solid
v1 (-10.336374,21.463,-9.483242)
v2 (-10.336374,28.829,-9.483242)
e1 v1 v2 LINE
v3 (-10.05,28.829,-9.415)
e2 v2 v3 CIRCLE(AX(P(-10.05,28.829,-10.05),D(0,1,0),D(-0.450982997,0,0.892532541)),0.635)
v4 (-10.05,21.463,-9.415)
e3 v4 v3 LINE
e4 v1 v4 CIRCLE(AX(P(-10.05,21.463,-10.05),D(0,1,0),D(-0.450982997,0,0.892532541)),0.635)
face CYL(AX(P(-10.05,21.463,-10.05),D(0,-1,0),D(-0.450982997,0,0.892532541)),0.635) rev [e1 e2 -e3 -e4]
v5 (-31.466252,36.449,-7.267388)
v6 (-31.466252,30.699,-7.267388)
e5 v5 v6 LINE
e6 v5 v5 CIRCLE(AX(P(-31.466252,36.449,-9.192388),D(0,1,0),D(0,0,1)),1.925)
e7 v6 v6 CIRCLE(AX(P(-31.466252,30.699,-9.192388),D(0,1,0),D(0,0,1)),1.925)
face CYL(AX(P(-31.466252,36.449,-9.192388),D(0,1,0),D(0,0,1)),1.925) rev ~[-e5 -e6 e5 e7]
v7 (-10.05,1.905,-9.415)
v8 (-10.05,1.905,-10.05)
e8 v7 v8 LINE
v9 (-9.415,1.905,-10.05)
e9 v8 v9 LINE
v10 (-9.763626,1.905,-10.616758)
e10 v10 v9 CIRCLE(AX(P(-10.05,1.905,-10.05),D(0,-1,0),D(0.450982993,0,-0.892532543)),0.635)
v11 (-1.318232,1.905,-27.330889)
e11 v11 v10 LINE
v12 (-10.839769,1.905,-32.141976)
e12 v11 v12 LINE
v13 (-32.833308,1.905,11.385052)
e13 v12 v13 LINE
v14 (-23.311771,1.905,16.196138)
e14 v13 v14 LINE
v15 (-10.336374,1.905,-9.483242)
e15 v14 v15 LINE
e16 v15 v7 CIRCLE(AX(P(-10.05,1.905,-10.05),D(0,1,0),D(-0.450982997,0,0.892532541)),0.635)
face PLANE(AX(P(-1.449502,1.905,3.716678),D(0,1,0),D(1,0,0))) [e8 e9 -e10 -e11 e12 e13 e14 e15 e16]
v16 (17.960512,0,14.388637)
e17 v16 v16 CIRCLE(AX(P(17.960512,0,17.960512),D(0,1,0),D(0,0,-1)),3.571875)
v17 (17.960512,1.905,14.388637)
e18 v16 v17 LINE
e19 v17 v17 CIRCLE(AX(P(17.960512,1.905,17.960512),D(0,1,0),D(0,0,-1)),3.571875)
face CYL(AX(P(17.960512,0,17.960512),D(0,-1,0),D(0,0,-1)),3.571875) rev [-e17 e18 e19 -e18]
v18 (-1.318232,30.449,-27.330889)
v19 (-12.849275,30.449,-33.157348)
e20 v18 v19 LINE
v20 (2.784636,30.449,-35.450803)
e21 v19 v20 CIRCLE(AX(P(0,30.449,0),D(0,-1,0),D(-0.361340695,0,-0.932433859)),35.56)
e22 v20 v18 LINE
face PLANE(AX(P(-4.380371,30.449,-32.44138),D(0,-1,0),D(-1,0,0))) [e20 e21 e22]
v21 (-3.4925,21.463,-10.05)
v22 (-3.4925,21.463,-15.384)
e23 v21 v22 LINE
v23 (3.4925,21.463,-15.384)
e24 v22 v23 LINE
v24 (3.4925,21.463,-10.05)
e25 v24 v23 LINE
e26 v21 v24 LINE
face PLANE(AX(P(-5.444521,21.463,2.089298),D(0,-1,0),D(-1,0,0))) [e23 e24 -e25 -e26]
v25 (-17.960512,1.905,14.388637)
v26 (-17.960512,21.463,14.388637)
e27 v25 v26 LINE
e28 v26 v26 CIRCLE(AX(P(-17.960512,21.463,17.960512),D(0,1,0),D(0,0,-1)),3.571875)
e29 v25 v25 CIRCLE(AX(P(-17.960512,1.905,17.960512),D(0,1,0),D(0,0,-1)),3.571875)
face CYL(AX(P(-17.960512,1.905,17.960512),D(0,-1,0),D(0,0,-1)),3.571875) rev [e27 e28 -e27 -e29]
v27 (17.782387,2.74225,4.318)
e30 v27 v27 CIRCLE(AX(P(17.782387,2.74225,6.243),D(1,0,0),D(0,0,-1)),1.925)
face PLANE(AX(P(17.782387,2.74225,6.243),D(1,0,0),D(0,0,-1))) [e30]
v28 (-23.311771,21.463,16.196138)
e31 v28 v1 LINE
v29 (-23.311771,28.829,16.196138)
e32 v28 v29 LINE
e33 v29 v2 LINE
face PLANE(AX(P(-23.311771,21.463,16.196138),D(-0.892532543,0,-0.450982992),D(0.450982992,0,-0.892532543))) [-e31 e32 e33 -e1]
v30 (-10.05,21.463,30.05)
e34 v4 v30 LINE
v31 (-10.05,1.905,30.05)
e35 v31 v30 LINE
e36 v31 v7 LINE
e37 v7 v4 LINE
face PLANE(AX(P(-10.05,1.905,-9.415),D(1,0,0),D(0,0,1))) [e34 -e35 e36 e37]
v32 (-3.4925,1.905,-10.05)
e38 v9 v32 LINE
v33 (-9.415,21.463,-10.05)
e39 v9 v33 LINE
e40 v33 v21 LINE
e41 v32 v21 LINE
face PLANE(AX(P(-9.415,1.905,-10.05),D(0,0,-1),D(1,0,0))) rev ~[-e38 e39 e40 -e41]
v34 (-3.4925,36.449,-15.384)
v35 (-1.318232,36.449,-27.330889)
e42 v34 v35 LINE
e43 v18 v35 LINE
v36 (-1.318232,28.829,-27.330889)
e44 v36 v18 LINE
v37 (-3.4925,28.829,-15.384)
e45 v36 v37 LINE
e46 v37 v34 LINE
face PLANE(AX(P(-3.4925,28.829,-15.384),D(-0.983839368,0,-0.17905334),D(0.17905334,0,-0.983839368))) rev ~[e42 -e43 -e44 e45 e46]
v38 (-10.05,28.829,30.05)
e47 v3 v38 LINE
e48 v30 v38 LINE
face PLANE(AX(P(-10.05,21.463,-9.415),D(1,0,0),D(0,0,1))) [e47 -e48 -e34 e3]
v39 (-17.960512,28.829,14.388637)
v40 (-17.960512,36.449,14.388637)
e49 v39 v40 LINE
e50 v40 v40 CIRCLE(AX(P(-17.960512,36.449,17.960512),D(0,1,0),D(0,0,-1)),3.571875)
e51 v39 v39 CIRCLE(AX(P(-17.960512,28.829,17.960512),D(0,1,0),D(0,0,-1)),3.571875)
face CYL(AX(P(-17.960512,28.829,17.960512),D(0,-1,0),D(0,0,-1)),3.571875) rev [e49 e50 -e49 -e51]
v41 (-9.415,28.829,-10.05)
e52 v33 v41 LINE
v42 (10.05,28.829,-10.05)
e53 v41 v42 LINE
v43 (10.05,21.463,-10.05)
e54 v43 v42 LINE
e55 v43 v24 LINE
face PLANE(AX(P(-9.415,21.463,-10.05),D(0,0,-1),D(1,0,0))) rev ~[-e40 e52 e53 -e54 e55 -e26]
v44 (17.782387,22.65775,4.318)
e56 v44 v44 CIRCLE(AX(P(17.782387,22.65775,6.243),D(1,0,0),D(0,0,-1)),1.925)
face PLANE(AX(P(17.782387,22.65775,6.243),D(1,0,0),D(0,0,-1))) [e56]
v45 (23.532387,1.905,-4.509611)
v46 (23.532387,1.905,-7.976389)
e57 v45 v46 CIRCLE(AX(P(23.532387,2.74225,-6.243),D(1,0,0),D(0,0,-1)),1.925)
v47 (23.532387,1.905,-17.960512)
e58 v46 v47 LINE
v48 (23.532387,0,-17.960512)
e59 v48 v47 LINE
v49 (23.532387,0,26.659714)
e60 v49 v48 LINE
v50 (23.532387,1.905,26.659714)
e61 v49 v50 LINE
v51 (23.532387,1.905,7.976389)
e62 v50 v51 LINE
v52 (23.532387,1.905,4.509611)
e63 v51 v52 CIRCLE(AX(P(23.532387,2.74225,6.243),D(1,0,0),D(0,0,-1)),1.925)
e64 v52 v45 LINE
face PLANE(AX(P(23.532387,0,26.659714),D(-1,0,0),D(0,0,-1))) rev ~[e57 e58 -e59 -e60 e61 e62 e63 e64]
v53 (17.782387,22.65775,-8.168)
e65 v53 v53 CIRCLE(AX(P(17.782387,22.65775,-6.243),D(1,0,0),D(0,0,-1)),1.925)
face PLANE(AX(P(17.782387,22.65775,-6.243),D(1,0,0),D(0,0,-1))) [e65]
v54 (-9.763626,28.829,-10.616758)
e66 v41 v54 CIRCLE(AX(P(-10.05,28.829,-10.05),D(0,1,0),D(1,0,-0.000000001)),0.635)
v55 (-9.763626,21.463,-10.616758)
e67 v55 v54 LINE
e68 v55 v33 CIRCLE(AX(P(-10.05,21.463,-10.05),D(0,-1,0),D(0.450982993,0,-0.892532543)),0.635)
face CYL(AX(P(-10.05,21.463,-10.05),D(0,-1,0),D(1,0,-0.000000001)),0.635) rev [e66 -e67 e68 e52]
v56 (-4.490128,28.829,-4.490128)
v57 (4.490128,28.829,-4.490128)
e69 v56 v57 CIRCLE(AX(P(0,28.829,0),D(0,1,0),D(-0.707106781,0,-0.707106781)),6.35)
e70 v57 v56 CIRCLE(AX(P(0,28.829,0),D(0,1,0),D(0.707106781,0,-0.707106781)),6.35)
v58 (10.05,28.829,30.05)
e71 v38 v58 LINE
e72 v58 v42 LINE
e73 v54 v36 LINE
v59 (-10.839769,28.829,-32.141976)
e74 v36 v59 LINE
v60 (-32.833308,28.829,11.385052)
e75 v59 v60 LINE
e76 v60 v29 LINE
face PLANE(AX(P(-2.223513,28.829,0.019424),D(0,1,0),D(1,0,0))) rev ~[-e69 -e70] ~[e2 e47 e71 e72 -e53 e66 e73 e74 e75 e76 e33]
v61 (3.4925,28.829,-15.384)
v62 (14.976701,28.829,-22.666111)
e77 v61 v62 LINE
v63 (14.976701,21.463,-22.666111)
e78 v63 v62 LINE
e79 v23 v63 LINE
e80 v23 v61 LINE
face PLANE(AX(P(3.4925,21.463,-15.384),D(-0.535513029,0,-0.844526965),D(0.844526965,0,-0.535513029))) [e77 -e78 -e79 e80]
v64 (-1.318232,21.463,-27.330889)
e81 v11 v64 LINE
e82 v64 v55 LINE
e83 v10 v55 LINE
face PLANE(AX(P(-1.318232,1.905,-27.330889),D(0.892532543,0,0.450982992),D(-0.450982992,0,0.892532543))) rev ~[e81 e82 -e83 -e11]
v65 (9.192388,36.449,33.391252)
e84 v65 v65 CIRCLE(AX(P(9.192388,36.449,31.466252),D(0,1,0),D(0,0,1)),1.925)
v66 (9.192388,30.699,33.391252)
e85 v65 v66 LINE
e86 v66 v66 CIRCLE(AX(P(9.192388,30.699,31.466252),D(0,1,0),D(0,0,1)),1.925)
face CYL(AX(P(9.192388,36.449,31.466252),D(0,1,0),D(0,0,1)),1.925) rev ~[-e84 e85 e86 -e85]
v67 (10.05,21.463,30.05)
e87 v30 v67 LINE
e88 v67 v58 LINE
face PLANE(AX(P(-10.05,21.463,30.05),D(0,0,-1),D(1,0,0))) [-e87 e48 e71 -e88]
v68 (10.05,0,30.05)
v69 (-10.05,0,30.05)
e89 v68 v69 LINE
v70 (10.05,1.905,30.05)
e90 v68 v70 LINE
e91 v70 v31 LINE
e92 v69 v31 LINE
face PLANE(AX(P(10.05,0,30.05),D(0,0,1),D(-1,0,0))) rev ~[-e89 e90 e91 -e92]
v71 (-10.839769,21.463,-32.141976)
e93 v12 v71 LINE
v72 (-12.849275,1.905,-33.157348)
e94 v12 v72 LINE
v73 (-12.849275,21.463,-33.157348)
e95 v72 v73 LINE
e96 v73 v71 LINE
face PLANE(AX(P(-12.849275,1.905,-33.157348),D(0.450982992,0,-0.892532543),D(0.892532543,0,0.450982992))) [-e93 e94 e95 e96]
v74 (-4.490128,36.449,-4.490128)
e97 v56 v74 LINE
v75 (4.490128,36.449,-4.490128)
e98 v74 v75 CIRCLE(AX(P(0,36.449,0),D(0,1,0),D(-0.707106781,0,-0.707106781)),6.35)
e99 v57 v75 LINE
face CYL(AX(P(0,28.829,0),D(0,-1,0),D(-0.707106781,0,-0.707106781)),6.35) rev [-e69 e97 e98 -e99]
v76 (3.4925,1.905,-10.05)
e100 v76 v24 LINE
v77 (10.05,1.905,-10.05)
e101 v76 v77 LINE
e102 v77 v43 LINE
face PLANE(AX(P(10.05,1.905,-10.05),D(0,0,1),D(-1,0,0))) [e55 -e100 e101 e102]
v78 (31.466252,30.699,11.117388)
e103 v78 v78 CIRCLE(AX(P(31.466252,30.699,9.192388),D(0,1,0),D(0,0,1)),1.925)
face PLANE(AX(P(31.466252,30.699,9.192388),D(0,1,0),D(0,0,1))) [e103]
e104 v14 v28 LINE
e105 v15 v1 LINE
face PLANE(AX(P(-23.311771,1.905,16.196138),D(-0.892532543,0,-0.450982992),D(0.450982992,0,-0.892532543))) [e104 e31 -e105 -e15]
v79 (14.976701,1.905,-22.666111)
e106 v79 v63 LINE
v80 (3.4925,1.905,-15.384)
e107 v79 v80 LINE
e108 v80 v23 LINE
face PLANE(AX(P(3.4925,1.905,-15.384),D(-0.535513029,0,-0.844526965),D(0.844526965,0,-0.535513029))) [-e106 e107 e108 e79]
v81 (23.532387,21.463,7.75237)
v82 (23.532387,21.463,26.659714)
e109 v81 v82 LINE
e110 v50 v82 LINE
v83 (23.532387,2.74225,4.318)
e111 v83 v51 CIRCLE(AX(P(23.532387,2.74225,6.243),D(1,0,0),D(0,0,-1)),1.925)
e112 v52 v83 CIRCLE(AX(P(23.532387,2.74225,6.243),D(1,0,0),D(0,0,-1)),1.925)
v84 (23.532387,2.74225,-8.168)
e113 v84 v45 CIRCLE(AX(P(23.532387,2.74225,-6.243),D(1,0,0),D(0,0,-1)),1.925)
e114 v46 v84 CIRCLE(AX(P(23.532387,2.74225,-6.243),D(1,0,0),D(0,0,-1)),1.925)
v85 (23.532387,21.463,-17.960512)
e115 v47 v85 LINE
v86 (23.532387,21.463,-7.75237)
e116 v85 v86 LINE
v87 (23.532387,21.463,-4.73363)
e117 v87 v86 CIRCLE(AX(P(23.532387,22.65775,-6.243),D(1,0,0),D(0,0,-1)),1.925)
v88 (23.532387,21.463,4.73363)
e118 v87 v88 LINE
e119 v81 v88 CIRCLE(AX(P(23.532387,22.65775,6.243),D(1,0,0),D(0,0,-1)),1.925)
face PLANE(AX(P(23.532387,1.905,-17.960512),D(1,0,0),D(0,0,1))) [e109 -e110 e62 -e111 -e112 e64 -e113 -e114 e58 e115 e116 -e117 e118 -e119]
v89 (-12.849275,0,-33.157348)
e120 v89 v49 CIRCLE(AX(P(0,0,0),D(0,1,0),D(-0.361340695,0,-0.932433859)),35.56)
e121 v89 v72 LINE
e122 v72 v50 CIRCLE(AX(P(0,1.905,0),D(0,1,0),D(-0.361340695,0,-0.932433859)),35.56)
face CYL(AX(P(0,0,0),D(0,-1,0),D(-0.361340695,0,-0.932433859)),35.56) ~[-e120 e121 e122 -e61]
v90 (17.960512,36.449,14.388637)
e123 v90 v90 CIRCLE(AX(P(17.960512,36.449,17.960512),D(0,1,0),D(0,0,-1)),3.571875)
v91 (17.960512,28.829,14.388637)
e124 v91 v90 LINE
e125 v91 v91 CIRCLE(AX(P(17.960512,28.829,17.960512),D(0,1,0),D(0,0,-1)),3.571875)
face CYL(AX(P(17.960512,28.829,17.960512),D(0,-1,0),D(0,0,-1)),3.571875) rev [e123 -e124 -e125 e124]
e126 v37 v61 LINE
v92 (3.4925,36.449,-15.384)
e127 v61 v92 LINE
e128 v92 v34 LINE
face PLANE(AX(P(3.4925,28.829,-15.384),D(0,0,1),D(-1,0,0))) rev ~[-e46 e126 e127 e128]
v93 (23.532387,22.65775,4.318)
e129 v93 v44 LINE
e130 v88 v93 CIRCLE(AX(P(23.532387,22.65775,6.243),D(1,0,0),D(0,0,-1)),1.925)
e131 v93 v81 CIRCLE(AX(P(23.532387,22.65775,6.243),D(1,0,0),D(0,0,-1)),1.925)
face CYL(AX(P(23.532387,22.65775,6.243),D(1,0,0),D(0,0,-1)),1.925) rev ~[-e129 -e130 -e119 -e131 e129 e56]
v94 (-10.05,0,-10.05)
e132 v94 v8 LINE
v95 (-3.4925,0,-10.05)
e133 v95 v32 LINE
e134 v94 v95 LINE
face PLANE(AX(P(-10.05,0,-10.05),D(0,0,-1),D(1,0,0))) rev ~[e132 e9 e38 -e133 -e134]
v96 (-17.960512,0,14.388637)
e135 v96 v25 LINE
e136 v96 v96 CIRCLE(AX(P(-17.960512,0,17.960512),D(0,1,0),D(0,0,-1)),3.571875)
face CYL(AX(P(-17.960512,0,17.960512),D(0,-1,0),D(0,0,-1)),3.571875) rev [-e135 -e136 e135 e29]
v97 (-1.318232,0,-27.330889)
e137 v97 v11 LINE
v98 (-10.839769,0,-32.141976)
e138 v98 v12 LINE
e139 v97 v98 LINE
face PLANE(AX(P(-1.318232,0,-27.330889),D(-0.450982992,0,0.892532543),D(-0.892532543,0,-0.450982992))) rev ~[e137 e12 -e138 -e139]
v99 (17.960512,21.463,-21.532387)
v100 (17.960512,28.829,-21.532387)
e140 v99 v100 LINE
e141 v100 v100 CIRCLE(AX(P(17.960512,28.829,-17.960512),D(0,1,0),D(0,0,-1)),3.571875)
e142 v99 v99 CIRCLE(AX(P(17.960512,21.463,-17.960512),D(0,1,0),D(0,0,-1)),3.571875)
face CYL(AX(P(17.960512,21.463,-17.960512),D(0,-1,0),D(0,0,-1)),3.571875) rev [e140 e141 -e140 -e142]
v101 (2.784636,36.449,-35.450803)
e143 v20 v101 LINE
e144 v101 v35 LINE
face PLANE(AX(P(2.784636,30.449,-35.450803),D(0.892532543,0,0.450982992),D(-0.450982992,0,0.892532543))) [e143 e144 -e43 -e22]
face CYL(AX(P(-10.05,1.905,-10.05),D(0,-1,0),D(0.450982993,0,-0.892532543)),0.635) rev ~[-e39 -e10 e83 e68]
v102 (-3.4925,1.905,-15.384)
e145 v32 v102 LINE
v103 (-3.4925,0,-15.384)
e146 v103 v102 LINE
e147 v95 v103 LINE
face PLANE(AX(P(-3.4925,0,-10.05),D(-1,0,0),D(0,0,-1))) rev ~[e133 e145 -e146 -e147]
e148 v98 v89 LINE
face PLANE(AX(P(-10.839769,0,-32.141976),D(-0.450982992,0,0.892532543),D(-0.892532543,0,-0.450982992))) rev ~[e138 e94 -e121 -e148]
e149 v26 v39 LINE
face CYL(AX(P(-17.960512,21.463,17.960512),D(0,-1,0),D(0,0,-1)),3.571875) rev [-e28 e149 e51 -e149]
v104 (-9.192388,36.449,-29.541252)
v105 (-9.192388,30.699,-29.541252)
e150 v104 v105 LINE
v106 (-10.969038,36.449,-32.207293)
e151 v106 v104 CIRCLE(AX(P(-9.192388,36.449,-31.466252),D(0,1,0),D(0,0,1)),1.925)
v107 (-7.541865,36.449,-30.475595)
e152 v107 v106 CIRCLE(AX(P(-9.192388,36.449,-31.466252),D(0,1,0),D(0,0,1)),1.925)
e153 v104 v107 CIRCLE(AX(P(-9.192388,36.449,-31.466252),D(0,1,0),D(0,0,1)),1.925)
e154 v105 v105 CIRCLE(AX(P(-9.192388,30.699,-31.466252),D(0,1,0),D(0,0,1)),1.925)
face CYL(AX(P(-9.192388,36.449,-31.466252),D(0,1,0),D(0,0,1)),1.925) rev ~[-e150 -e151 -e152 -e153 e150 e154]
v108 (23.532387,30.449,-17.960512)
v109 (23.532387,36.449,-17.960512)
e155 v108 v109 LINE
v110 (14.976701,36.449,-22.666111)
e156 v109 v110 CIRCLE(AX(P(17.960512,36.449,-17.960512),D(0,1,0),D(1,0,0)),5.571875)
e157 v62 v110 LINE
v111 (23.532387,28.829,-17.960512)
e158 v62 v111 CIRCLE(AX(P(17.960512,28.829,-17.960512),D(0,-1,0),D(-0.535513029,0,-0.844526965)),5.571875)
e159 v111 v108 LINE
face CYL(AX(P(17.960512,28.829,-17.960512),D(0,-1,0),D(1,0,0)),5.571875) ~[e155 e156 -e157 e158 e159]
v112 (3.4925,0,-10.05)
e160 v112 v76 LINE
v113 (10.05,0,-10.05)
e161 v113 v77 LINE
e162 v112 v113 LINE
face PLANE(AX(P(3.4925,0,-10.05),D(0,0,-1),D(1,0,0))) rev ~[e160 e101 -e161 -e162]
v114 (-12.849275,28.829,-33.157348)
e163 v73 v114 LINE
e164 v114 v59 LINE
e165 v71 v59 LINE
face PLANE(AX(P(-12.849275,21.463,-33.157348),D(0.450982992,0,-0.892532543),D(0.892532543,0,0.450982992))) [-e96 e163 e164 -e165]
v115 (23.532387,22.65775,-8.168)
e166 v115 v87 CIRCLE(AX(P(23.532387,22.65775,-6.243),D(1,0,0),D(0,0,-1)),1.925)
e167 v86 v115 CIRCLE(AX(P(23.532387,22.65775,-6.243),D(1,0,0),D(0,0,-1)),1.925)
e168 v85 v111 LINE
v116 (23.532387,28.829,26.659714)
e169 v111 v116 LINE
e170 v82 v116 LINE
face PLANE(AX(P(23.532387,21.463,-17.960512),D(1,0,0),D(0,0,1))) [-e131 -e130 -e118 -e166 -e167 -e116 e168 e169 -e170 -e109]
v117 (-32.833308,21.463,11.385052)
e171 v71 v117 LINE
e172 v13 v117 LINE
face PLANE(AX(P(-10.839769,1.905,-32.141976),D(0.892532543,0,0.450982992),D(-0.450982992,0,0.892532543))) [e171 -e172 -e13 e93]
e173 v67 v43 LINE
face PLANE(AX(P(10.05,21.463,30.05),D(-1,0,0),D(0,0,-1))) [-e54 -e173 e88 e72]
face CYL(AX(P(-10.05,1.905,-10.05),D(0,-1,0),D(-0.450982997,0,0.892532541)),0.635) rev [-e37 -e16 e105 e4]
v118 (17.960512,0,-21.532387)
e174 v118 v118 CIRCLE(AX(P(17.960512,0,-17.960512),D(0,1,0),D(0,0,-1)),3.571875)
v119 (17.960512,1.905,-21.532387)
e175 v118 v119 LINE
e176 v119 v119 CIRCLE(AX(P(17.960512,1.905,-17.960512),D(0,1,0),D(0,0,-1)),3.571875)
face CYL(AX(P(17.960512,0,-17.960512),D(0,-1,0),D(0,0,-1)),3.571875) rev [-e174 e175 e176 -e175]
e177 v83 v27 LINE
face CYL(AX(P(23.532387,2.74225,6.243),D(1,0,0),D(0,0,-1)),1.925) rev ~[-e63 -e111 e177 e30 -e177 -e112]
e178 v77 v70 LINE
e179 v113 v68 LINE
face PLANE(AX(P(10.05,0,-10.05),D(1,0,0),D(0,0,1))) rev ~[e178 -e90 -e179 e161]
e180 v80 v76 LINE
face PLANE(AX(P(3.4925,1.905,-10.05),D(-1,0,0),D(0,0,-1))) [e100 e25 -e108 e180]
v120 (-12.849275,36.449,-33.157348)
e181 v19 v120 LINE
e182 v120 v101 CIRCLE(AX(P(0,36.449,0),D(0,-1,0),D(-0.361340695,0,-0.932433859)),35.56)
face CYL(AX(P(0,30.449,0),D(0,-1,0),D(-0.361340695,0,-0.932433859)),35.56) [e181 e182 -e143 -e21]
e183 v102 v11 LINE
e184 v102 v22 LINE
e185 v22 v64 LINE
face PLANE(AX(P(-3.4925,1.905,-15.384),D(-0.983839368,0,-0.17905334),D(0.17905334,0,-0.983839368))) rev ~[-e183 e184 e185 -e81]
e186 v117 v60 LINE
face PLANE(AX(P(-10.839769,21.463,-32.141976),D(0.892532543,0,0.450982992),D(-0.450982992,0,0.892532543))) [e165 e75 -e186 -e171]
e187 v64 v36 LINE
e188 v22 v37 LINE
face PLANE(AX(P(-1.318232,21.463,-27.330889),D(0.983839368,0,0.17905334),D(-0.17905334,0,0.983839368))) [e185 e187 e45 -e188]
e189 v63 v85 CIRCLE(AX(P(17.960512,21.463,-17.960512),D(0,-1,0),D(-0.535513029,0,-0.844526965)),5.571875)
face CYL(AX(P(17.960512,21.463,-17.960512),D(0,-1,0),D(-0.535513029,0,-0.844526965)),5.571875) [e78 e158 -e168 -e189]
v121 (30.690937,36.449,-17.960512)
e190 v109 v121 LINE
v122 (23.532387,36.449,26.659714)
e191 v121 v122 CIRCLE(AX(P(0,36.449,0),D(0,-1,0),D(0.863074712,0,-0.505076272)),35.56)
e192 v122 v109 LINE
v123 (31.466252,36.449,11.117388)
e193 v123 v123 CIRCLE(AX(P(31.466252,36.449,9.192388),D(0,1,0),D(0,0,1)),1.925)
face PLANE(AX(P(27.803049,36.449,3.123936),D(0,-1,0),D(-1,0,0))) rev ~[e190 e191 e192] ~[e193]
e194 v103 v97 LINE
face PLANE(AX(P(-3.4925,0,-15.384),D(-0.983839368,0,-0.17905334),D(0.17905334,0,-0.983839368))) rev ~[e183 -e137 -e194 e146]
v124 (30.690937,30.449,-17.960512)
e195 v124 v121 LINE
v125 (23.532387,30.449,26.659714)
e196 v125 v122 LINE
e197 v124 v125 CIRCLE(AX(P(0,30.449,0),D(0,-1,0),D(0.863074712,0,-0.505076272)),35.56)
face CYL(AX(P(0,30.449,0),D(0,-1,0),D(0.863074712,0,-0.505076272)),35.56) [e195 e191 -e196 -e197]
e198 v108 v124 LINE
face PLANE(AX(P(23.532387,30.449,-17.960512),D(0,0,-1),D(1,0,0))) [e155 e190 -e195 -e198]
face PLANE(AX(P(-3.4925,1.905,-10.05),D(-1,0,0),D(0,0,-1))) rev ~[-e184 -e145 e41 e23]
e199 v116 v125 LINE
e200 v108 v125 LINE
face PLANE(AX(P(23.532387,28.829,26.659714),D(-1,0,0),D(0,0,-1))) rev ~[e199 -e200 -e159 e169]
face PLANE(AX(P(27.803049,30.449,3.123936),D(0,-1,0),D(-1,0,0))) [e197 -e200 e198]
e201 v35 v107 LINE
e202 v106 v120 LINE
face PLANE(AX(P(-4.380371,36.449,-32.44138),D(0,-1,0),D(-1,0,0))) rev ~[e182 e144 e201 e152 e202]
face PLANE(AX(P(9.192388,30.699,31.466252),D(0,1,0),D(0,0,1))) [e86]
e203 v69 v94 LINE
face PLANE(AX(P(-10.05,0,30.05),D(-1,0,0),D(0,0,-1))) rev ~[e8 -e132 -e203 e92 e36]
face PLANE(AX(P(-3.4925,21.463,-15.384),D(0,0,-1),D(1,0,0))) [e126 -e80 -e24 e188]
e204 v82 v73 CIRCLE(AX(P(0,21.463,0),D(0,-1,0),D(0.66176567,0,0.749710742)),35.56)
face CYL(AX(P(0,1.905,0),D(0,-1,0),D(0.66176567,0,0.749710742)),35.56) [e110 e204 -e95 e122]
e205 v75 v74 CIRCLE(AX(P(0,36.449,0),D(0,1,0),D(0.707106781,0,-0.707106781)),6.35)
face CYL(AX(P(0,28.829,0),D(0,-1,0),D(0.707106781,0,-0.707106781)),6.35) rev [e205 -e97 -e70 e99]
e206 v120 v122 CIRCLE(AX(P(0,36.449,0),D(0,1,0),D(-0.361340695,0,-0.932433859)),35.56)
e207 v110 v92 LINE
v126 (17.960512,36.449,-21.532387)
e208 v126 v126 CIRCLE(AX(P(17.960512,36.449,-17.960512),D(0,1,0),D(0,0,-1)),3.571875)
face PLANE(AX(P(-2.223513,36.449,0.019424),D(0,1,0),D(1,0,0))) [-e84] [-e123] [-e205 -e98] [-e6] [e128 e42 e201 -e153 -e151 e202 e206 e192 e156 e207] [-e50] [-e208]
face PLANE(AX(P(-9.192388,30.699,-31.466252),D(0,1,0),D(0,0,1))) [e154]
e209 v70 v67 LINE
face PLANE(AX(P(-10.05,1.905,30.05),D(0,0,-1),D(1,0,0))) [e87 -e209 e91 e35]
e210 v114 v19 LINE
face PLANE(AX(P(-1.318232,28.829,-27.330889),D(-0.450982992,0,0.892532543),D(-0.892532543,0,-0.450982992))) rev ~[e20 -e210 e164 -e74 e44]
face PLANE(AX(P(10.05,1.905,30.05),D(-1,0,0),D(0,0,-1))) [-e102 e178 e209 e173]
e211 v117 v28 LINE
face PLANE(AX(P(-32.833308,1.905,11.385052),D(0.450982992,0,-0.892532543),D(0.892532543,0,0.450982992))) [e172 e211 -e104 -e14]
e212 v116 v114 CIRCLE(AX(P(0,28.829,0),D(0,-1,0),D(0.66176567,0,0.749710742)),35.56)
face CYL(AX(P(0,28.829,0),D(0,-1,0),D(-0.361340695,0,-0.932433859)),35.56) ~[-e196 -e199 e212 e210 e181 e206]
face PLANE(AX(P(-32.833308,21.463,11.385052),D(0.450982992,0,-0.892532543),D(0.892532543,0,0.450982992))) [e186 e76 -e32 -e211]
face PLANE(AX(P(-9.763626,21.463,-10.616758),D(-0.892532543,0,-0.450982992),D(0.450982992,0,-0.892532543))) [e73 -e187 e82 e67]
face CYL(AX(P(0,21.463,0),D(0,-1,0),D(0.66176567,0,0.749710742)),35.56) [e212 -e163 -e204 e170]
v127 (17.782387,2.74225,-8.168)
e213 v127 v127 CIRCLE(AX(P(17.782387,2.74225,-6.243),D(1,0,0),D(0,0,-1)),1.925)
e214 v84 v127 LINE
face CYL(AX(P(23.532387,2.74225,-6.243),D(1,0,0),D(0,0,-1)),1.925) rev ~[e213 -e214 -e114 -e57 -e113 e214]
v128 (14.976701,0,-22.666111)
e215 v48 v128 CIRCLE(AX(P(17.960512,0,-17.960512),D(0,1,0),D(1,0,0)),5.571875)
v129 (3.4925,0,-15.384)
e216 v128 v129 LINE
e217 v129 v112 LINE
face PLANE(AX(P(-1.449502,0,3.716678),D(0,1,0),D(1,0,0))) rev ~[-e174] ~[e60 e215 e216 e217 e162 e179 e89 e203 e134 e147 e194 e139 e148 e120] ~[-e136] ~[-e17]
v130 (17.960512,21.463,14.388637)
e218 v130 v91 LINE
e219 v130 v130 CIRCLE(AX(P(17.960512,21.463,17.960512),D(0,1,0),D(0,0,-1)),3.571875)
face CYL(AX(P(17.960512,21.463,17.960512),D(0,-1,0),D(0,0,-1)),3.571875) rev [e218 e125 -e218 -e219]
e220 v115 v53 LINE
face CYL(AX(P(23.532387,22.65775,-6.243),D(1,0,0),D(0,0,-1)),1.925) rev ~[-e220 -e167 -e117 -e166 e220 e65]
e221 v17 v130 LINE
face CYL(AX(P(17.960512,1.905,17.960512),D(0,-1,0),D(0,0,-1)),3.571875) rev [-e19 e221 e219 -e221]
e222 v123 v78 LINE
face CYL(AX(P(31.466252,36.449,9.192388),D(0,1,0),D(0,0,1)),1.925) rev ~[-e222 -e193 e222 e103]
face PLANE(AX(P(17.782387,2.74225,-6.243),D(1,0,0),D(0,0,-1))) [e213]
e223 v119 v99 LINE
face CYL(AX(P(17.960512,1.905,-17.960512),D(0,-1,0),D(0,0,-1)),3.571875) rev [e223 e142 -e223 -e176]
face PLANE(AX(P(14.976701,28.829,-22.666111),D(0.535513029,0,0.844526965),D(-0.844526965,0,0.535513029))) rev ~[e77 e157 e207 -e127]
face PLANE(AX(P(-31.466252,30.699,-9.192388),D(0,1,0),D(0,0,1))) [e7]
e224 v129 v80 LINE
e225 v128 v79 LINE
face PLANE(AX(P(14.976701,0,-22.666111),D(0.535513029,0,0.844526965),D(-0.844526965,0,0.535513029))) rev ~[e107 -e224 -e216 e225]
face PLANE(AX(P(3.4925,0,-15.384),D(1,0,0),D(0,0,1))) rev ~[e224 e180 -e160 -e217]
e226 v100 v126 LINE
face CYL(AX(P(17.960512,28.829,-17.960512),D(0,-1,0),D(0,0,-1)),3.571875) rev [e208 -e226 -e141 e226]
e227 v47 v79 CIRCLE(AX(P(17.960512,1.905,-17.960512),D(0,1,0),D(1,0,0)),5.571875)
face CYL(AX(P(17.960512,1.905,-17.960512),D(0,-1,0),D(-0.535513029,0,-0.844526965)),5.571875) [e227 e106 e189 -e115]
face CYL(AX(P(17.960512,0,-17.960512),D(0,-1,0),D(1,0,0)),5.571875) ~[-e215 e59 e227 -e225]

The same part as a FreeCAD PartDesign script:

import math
import FreeCAD as App
import Part
import Sketcher

V = App.Vector
Q = App.Units.Quantity

doc = App.newDocument("Part")
body = doc.addObject("PartDesign::Body", "Body")

sketch1 = body.newObject("Sketcher::SketchObject", "Sketch")
sketch1.AttachmentSupport = (doc.getObject("XZ_Plane"), [""])
sketch1.MapMode = "FlatFace"
sketch1.addGeometry(Part.LineSegment(V(10.1, 30.1, 0), V(-10.1, 30.1, 0)), False)
sketch1.addGeometry(Part.LineSegment(V(-10.1, 30.1, 0), V(-10.1, -10.1, 0)), False)
sketch1.addGeometry(Part.LineSegment(V(-10.1, -10.1, 0), V(-3.5, -10.1, 0)), False)
sketch1.addGeometry(Part.LineSegment(V(-3.5, -10.1, 0), V(-3.5, -15.4, 0)), False)
sketch1.addGeometry(Part.LineSegment(V(-3.5, -15.4, 0), V(-1.3, -27.3, 0)), False)
sketch1.addGeometry(Part.LineSegment(V(-1.3, -27.3, 0), V(-10.8, -32.1, 0)), False)
sketch1.addGeometry(Part.LineSegment(V(-10.8, -32.1, 0), V(-12.8, -33.2, 0)), False)
sketch1.addGeometry(Part.ArcOfCircle(Part.Circle(V(0, 0, 0), V(0, 0, 1), 35.6), math.radians(49), math.radians(249)), False)
sketch1.addGeometry(Part.LineSegment(V(23.5, 26.7, 0), V(23.5, -18, 0)), False)
sketch1.addGeometry(Part.ArcOfCircle(Part.Circle(V(18, -18, 0), V(0, 0, 1), 5.6), math.radians(-122), math.radians(0)), False)
sketch1.addGeometry(Part.LineSegment(V(15, -22.7, 0), V(3.5, -15.4, 0)), False)
sketch1.addGeometry(Part.LineSegment(V(3.5, -15.4, 0), V(3.5, -10.1, 0)), False)
sketch1.addGeometry(Part.LineSegment(V(3.5, -10.1, 0), V(10.1, -10.1, 0)), False)
sketch1.addGeometry(Part.LineSegment(V(10.1, -10.1, 0), V(10.1, 30.1, 0)), False)
sketch1.addGeometry(Part.Circle(V(-18, 18, 0), V(0, 0, 1), 3.6), False)
sketch1.addGeometry(Part.Circle(V(18, 18, 0), V(0, 0, 1), 3.6), False)
sketch1.addGeometry(Part.Circle(V(18, -18, 0), V(0, 0, 1), 3.6), False)
sketch1.addConstraint(Sketcher.Constraint("Coincident", 0, 2, 1, 1))
sketch1.addConstraint(Sketcher.Constraint("Coincident", 1, 2, 2, 1))
sketch1.addConstraint(Sketcher.Constraint("Coincident", 2, 2, 3, 1))
sketch1.addConstraint(Sketcher.Constraint("Coincident", 3, 2, 4, 1))
sketch1.addConstraint(Sketcher.Constraint("Coincident", 4, 2, 5, 1))
sketch1.addConstraint(Sketcher.Constraint("Coincident", 5, 2, 6, 1))
sketch1.addConstraint(Sketcher.Constraint("Coincident", 6, 2, 7, 2))
sketch1.addConstraint(Sketcher.Constraint("Coincident", 7, 1, 8, 1))
sketch1.addConstraint(Sketcher.Constraint("Tangent", 8, 2, 9, 2))
sketch1.addConstraint(Sketcher.Constraint("Tangent", 9, 1, 10, 1))
sketch1.addConstraint(Sketcher.Constraint("Coincident", 10, 2, 11, 1))
sketch1.addConstraint(Sketcher.Constraint("Coincident", 11, 2, 12, 1))
sketch1.addConstraint(Sketcher.Constraint("Coincident", 12, 2, 13, 1))
sketch1.addConstraint(Sketcher.Constraint("Coincident", 13, 2, 0, 1))
sketch1.addConstraint(Sketcher.Constraint("Horizontal", 0))
sketch1.addConstraint(Sketcher.Constraint("Vertical", 1))
sketch1.addConstraint(Sketcher.Constraint("Horizontal", 2))
sketch1.addConstraint(Sketcher.Constraint("Vertical", 3))
sketch1.addConstraint(Sketcher.Constraint("Vertical", 8))
sketch1.addConstraint(Sketcher.Constraint("Vertical", 11))
sketch1.addConstraint(Sketcher.Constraint("Horizontal", 12))
sketch1.addConstraint(Sketcher.Constraint("Vertical", 13))
sketch1.addConstraint(Sketcher.Constraint("Coincident", 7, 3, -1, 1))
sketch1.addConstraint(Sketcher.Constraint("Coincident", 16, 3, 9, 3))
sketch1.addConstraint(Sketcher.Constraint("Equal", 14, 15))
sketch1.addConstraint(Sketcher.Constraint("Equal", 15, 16))
sketch1.addConstraint(Sketcher.Constraint("Symmetric", 9, 3, 14, 3, -1, 1))
sketch1.addConstraint(Sketcher.Constraint("Symmetric", 14, 3, 15, 3, -2))
sketch1.addConstraint(Sketcher.Constraint("Symmetric", 3, 2, 10, 2, -2))
sketch1.addConstraint(Sketcher.Constraint("Symmetric", 1, 2, 12, 2, -2))
sketch1.addConstraint(Sketcher.Constraint("Parallel", 5, 6))
sketch1.addConstraint(Sketcher.Constraint("Radius", 7, Q("1.4 in")))
sketch1.addConstraint(Sketcher.Constraint("Diameter", 14, Q("0.28125 in")))
sketch1.addConstraint(Sketcher.Constraint("DistanceY", 3, 2, 3, 1, Q("0.21 in")))
sketch1.addConstraint(Sketcher.Constraint("Distance", 5, Q("0.42 in")))
sketch1.addConstraint(Sketcher.Constraint("DistanceX", 3, 2, 10, 2, Q("0.275 in")))
sketch1.addConstraint(Sketcher.Constraint("DistanceX", 0, 2, 0, 1, Q("20.1 mm")))
sketch1.addConstraint(Sketcher.Constraint("DistanceY", 1, 2, 1, 1, Q("40.1 mm")))
sketch1.addConstraint(Sketcher.Constraint("Radius", 9, Q("5.571875 mm")))
sketch1.addConstraint(Sketcher.Constraint("DistanceY", -1, 1, 0, 2, Q("30.05 mm")))
sketch1.addConstraint(Sketcher.Constraint("DistanceX", -1, 1, 9, 1, Q("14.976701 mm")))
sketch1.addConstraint(Sketcher.Constraint("DistanceY", 15, 3, 7, 1, Q("8.699202 mm")))
sketch1.addConstraint(Sketcher.Constraint("Distance", 4, Q("12.14313 mm")))
sketch1.addConstraint(Sketcher.Constraint("DistanceY", 4, 2, -1, 1, Q("27.330889 mm")))
sketch1.addConstraint(Sketcher.Constraint("DistanceX", 5, 2, -1, 1, Q("10.839769 mm")))
pad1 = body.newObject("PartDesign::Pad", "Pad")
pad1.Profile = sketch1
pad1.Length = Q("0.075 in")
pad1.Reversed = True

sketch2 = body.newObject("Sketcher::SketchObject", "Sketch001")
sketch2.AttachmentSupport = (doc.getObject("XZ_Plane"), [""])
sketch2.MapMode = "FlatFace"
sketch2.AttachmentOffset = App.Placement(V(0, 0, -0.075 * 25.4), App.Rotation())
sketch2.addGeometry(Part.LineSegment(V(-32.83, 11.39, 0), V(-10.84, -32.14, 0)), False)
sketch2.addGeometry(Part.LineSegment(V(-10.84, -32.14, 0), V(-12.85, -33.16, 0)), False)
sketch2.addGeometry(Part.ArcOfCircle(Part.Circle(V(0, 0, 0), V(0, 0, 1), 35.56), math.radians(49), math.radians(249)), False)
sketch2.addGeometry(Part.LineSegment(V(23.53, 26.66, 0), V(23.53, -17.96, 0)), False)
sketch2.addGeometry(Part.ArcOfCircle(Part.Circle(V(17.96, -17.96, 0), V(0, 0, 1), 5.57), math.radians(-122), math.radians(0)), False)
sketch2.addGeometry(Part.LineSegment(V(14.98, -22.67, 0), V(3.49, -15.38, 0)), False)
sketch2.addGeometry(Part.LineSegment(V(3.49, -15.38, 0), V(3.49, -10.05, 0)), False)
sketch2.addGeometry(Part.LineSegment(V(3.49, -10.05, 0), V(10.05, -10.05, 0)), False)
sketch2.addGeometry(Part.LineSegment(V(10.05, -10.05, 0), V(10.05, 30.05, 0)), False)
sketch2.addGeometry(Part.LineSegment(V(10.05, 30.05, 0), V(-10.05, 30.05, 0)), False)
sketch2.addGeometry(Part.LineSegment(V(-10.05, 30.05, 0), V(-10.05, -9.41, 0)), False)
sketch2.addGeometry(Part.ArcOfCircle(Part.Circle(V(-10.05, -10.05, 0), V(0, 0, 1), 0.63), math.radians(90), math.radians(117)), False)
sketch2.addGeometry(Part.LineSegment(V(-10.34, -9.48, 0), V(-23.31, 16.2, 0)), False)
sketch2.addGeometry(Part.LineSegment(V(-23.31, 16.2, 0), V(-32.83, 11.39, 0)), False)
sketch2.addGeometry(Part.Circle(V(17.96, 17.96, 0), V(0, 0, 1), 3.57), False)
sketch2.addGeometry(Part.Circle(V(-17.96, 17.96, 0), V(0, 0, 1), 3.57), False)
sketch2.addGeometry(Part.Circle(V(17.96, -17.96, 0), V(0, 0, 1), 3.57), False)
sketch2.addGeometry(Part.LineSegment(V(-1.32, -27.33, 0), V(-9.76, -10.62, 0)), False)
sketch2.addGeometry(Part.ArcOfCircle(Part.Circle(V(-10.05, -10.05, 0), V(0, 0, 1), 0.64), math.radians(-63), math.radians(0)), False)
sketch2.addGeometry(Part.LineSegment(V(-9.41, -10.05, 0), V(-3.49, -10.05, 0)), False)
sketch2.addGeometry(Part.LineSegment(V(-3.49, -10.05, 0), V(-3.49, -15.38, 0)), False)
sketch2.addGeometry(Part.LineSegment(V(-3.49, -15.38, 0), V(-1.32, -27.33, 0)), False)
sketch2.addConstraint(Sketcher.Constraint("Coincident", 0, 2, 1, 1))
sketch2.addConstraint(Sketcher.Constraint("Coincident", 1, 2, 2, 2))
sketch2.addConstraint(Sketcher.Constraint("Coincident", 2, 1, 3, 1))
sketch2.addConstraint(Sketcher.Constraint("Tangent", 3, 2, 4, 2))
sketch2.addConstraint(Sketcher.Constraint("Tangent", 4, 1, 5, 1))
sketch2.addConstraint(Sketcher.Constraint("Coincident", 5, 2, 6, 1))
sketch2.addConstraint(Sketcher.Constraint("Coincident", 6, 2, 7, 1))
sketch2.addConstraint(Sketcher.Constraint("Coincident", 7, 2, 8, 1))
sketch2.addConstraint(Sketcher.Constraint("Coincident", 8, 2, 9, 1))
sketch2.addConstraint(Sketcher.Constraint("Coincident", 9, 2, 10, 1))
sketch2.addConstraint(Sketcher.Constraint("Coincident", 10, 2, 11, 1))
sketch2.addConstraint(Sketcher.Constraint("Coincident", 11, 2, 12, 1))
sketch2.addConstraint(Sketcher.Constraint("Coincident", 12, 2, 13, 1))
sketch2.addConstraint(Sketcher.Constraint("Coincident", 13, 2, 0, 1))
sketch2.addConstraint(Sketcher.Constraint("Coincident", 17, 2, 18, 1))
sketch2.addConstraint(Sketcher.Constraint("Coincident", 18, 2, 19, 1))
sketch2.addConstraint(Sketcher.Constraint("Coincident", 19, 2, 20, 1))
sketch2.addConstraint(Sketcher.Constraint("Coincident", 20, 2, 21, 1))
sketch2.addConstraint(Sketcher.Constraint("Coincident", 21, 2, 17, 1))
sketch2.addConstraint(Sketcher.Constraint("Vertical", 3))
sketch2.addConstraint(Sketcher.Constraint("Vertical", 6))
sketch2.addConstraint(Sketcher.Constraint("Horizontal", 7))
sketch2.addConstraint(Sketcher.Constraint("Vertical", 8))
sketch2.addConstraint(Sketcher.Constraint("Horizontal", 9))
sketch2.addConstraint(Sketcher.Constraint("Vertical", 10))
sketch2.addConstraint(Sketcher.Constraint("Horizontal", 19))
sketch2.addConstraint(Sketcher.Constraint("Vertical", 20))
sketch2.addConstraint(Sketcher.Constraint("Coincident", 2, 3, -1, 1))
sketch2.addConstraint(Sketcher.Constraint("Coincident", 16, 3, 4, 3))
sketch2.addConstraint(Sketcher.Constraint("Coincident", 18, 3, 11, 3))
sketch2.addConstraint(Sketcher.Constraint("Equal", 14, 15))
sketch2.addConstraint(Sketcher.Constraint("Equal", 15, 16))
sketch2.addConstraint(Sketcher.Constraint("Equal", 11, 18))
sketch2.addConstraint(Sketcher.Constraint("Symmetric", 4, 3, 15, 3, -1, 1))
sketch2.addConstraint(Sketcher.Constraint("Symmetric", 14, 3, 15, 3, -2))
sketch2.addConstraint(Sketcher.Constraint("Symmetric", 6, 2, 19, 2, -2))
sketch2.addConstraint(Sketcher.Constraint("Perpendicular", 0, 1))
sketch2.addConstraint(Sketcher.Constraint("Perpendicular", 1, 12))
sketch2.addConstraint(Sketcher.Constraint("Perpendicular", 12, 13))
sketch2.addConstraint(Sketcher.Constraint("Perpendicular", 13, 17))
sketch2.addConstraint(Sketcher.Constraint("Horizontal", 18, 3, 6, 2))
sketch2.addConstraint(Sketcher.Constraint("Horizontal", 5, 2, 20, 2))
sketch2.addConstraint(Sketcher.Constraint("Vertical", 18, 3, 9, 2))
sketch2.addConstraint(Sketcher.Constraint("Radius", 2, Q("1.4 in")))
sketch2.addConstraint(Sketcher.Constraint("Diameter", 14, Q("0.28125 in")))
sketch2.addConstraint(Sketcher.Constraint("Radius", 11, Q("0.025 in")))
sketch2.addConstraint(Sketcher.Constraint("DistanceY", 6, 1, 6, 2, Q("0.21 in")))
sketch2.addConstraint(Sketcher.Constraint("Distance", 0, Q("1.92 in")))
sketch2.addConstraint(Sketcher.Constraint("Distance", 13, Q("0.42 in")))
sketch2.addConstraint(Sketcher.Constraint("DistanceX", 20, 2, 5, 2, Q("0.275 in")))
sketch2.addConstraint(Sketcher.Constraint("DistanceX", 7, 1, 7, 2, Q("6.5575 mm")))
sketch2.addConstraint(Sketcher.Constraint("DistanceX", 9, 2, 9, 1, Q("20.1 mm")))
sketch2.addConstraint(Sketcher.Constraint("DistanceY", 8, 1, 8, 2, Q("40.1 mm")))
sketch2.addConstraint(Sketcher.Constraint("Radius", 4, Q("5.571875 mm")))
sketch2.addConstraint(Sketcher.Constraint("DistanceY", 11, 3, -1, 1, Q("10.05 mm")))
sketch2.addConstraint(Sketcher.Constraint("DistanceX", -1, 1, 4, 1, Q("14.976701 mm")))
sketch2.addConstraint(Sketcher.Constraint("DistanceY", 14, 3, 2, 1, Q("8.699202 mm")))
sketch2.addConstraint(Sketcher.Constraint("Distance", 21, Q("12.14313 mm")))
sketch2.addConstraint(Sketcher.Constraint("DistanceX", 0, 2, -1, 1, Q("10.839769 mm")))
sketch2.addConstraint(Sketcher.Constraint("DistanceY", 1, 2, -1, 1, Q("33.157348 mm")))
sketch2.addConstraint(Sketcher.Constraint("DistanceY", 11, 2, -1, 1, Q("9.483242 mm")))
sketch2.addConstraint(Sketcher.Constraint("DistanceY", 17, 2, -1, 1, Q("10.616758 mm")))
pad2 = body.newObject("PartDesign::Pad", "Pad001")
pad2.Profile = sketch2
pad2.Length = Q("0.77 in")
pad2.Reversed = True

sketch3 = body.newObject("Sketcher::SketchObject", "Sketch002")
sketch3.AttachmentSupport = (doc.getObject("XZ_Plane"), [""])
sketch3.MapMode = "FlatFace"
sketch3.AttachmentOffset = App.Placement(V(0, 0, -0.845 * 25.4), App.Rotation())
sketch3.addGeometry(Part.LineSegment(V(-9.41, -10.05, 0), V(10.05, -10.05, 0)), False)
sketch3.addGeometry(Part.LineSegment(V(10.05, -10.05, 0), V(10.05, 30.05, 0)), False)
sketch3.addGeometry(Part.LineSegment(V(10.05, 30.05, 0), V(-10.05, 30.05, 0)), False)
sketch3.addGeometry(Part.LineSegment(V(-10.05, 30.05, 0), V(-10.05, -9.41, 0)), False)
sketch3.addGeometry(Part.ArcOfCircle(Part.Circle(V(-10.05, -10.05, 0), V(0, 0, 1), 0.63), math.radians(90), math.radians(117)), False)
sketch3.addGeometry(Part.LineSegment(V(-10.34, -9.48, 0), V(-23.31, 16.2, 0)), False)
sketch3.addGeometry(Part.LineSegment(V(-23.31, 16.2, 0), V(-32.83, 11.39, 0)), False)
sketch3.addGeometry(Part.LineSegment(V(-32.83, 11.39, 0), V(-10.84, -32.14, 0)), False)
sketch3.addGeometry(Part.LineSegment(V(-10.84, -32.14, 0), V(-12.85, -33.16, 0)), False)
sketch3.addGeometry(Part.ArcOfCircle(Part.Circle(V(0, 0, 0), V(0, 0, 1), 35.56), math.radians(49), math.radians(249)), False)
sketch3.addGeometry(Part.LineSegment(V(23.53, 26.66, 0), V(23.53, -17.96, 0)), False)
sketch3.addGeometry(Part.ArcOfCircle(Part.Circle(V(17.96, -17.96, 0), V(0, 0, 1), 5.57), math.radians(-122), math.radians(0)), False)
sketch3.addGeometry(Part.LineSegment(V(14.98, -22.67, 0), V(3.49, -15.38, 0)), False)
sketch3.addGeometry(Part.LineSegment(V(3.49, -15.38, 0), V(-3.49, -15.38, 0)), False)
sketch3.addGeometry(Part.LineSegment(V(-3.49, -15.38, 0), V(-1.32, -27.33, 0)), False)
sketch3.addGeometry(Part.LineSegment(V(-1.32, -27.33, 0), V(-9.76, -10.62, 0)), False)
sketch3.addGeometry(Part.ArcOfCircle(Part.Circle(V(-10.05, -10.05, 0), V(0, 0, 1), 0.64), math.radians(-63), math.radians(0)), False)
sketch3.addGeometry(Part.Circle(V(17.96, 17.96, 0), V(0, 0, 1), 3.57), False)
sketch3.addGeometry(Part.Circle(V(-17.96, 17.96, 0), V(0, 0, 1), 3.57), False)
sketch3.addGeometry(Part.Circle(V(17.96, -17.96, 0), V(0, 0, 1), 3.57), False)
sketch3.addConstraint(Sketcher.Constraint("Coincident", 0, 2, 1, 1))
sketch3.addConstraint(Sketcher.Constraint("Coincident", 1, 2, 2, 1))
sketch3.addConstraint(Sketcher.Constraint("Coincident", 2, 2, 3, 1))
sketch3.addConstraint(Sketcher.Constraint("Coincident", 3, 2, 4, 1))
sketch3.addConstraint(Sketcher.Constraint("Coincident", 4, 2, 5, 1))
sketch3.addConstraint(Sketcher.Constraint("Coincident", 5, 2, 6, 1))
sketch3.addConstraint(Sketcher.Constraint("Coincident", 6, 2, 7, 1))
sketch3.addConstraint(Sketcher.Constraint("Coincident", 7, 2, 8, 1))
sketch3.addConstraint(Sketcher.Constraint("Coincident", 8, 2, 9, 2))
sketch3.addConstraint(Sketcher.Constraint("Coincident", 9, 1, 10, 1))
sketch3.addConstraint(Sketcher.Constraint("Tangent", 10, 2, 11, 2))
sketch3.addConstraint(Sketcher.Constraint("Tangent", 11, 1, 12, 1))
sketch3.addConstraint(Sketcher.Constraint("Coincident", 12, 2, 13, 1))
sketch3.addConstraint(Sketcher.Constraint("Coincident", 13, 2, 14, 1))
sketch3.addConstraint(Sketcher.Constraint("Coincident", 14, 2, 15, 1))
sketch3.addConstraint(Sketcher.Constraint("Coincident", 15, 2, 16, 1))
sketch3.addConstraint(Sketcher.Constraint("Coincident", 16, 2, 0, 1))
sketch3.addConstraint(Sketcher.Constraint("Horizontal", 0))
sketch3.addConstraint(Sketcher.Constraint("Vertical", 1))
sketch3.addConstraint(Sketcher.Constraint("Horizontal", 2))
sketch3.addConstraint(Sketcher.Constraint("Vertical", 3))
sketch3.addConstraint(Sketcher.Constraint("Vertical", 10))
sketch3.addConstraint(Sketcher.Constraint("Horizontal", 13))
sketch3.addConstraint(Sketcher.Constraint("Coincident", 9, 3, -1, 1))
sketch3.addConstraint(Sketcher.Constraint("Coincident", 16, 3, 4, 3))
sketch3.addConstraint(Sketcher.Constraint("Coincident", 19, 3, 11, 3))
sketch3.addConstraint(Sketcher.Constraint("Equal", 4, 16))
sketch3.addConstraint(Sketcher.Constraint("Equal", 17, 18))
sketch3.addConstraint(Sketcher.Constraint("Equal", 18, 19))
sketch3.addConstraint(Sketcher.Constraint("Symmetric", 11, 3, 18, 3, -1, 1))
sketch3.addConstraint(Sketcher.Constraint("Symmetric", 17, 3, 18, 3, -2))
sketch3.addConstraint(Sketcher.Constraint("Perpendicular", 5, 6))
sketch3.addConstraint(Sketcher.Constraint("Perpendicular", 6, 7))
sketch3.addConstraint(Sketcher.Constraint("Perpendicular", 7, 8))
sketch3.addConstraint(Sketcher.Constraint("Perpendicular", 8, 15))
sketch3.addConstraint(Sketcher.Constraint("Horizontal", 16, 3, 0, 2))
sketch3.addConstraint(Sketcher.Constraint("Vertical", 16, 3, 2, 2))
sketch3.addConstraint(Sketcher.Constraint("Radius", 9, Q("1.4 in")))
sketch3.addConstraint(Sketcher.Constraint("Diameter", 17, Q("0.28125 in")))
sketch3.addConstraint(Sketcher.Constraint("Radius", 4, Q("0.025 in")))
sketch3.addConstraint(Sketcher.Constraint("Distance", 6, Q("0.42 in")))
sketch3.addConstraint(Sketcher.Constraint("Distance", 7, Q("1.92 in")))
sketch3.addConstraint(Sketcher.Constraint("DistanceX", 13, 2, 13, 1, Q("0.275 in")))
sketch3.addConstraint(Sketcher.Constraint("DistanceY", 12, 2, 0, 2, Q("0.21 in")))
sketch3.addConstraint(Sketcher.Constraint("DistanceX", 0, 1, 0, 2, Q("19.465 mm")))
sketch3.addConstraint(Sketcher.Constraint("DistanceY", 1, 1, 1, 2, Q("40.1 mm")))
sketch3.addConstraint(Sketcher.Constraint("DistanceX", -1, 1, 12, 2, Q("0.1375 in")))
sketch3.addConstraint(Sketcher.Constraint("Radius", 11, Q("5.571875 mm")))
sketch3.addConstraint(Sketcher.Constraint("DistanceX", 4, 3, -1, 1, Q("10.05 mm")))
sketch3.addConstraint(Sketcher.Constraint("DistanceY", 4, 3, -1, 1, Q("10.05 mm")))
sketch3.addConstraint(Sketcher.Constraint("DistanceX", -1, 1, 11, 1, Q("14.976701 mm")))
sketch3.addConstraint(Sketcher.Constraint("DistanceX", 8, 2, 4, 2, Q("2.512901 mm")))
sketch3.addConstraint(Sketcher.Constraint("DistanceY", 17, 3, 9, 1, Q("8.699202 mm")))
sketch3.addConstraint(Sketcher.Constraint("Distance", 14, Q("12.14313 mm")))
sketch3.addConstraint(Sketcher.Constraint("DistanceY", 4, 2, -1, 1, Q("9.483242 mm")))
sketch3.addConstraint(Sketcher.Constraint("DistanceX", 5, 2, -1, 1, Q("23.311771 mm")))
sketch3.addConstraint(Sketcher.Constraint("DistanceY", 14, 2, -1, 1, Q("27.330889 mm")))
pad3 = body.newObject("PartDesign::Pad", "Pad002")
pad3.Profile = sketch3
pad3.Length = Q("0.29 in")
pad3.Reversed = True

sketch4 = body.newObject("Sketcher::SketchObject", "Sketch003")
sketch4.AttachmentSupport = (doc.getObject("XZ_Plane"), [""])
sketch4.MapMode = "FlatFace"
sketch4.AttachmentOffset = App.Placement(V(0, 0, -1.135 * 25.4), App.Rotation())
sketch4.addGeometry(Part.LineSegment(V(3.5, -15.4, 0), V(-3.5, -15.4, 0)), False)
sketch4.addGeometry(Part.LineSegment(V(-3.5, -15.4, 0), V(-1.3, -27.3, 0)), False)
sketch4.addGeometry(Part.LineSegment(V(-1.3, -27.3, 0), V(-12.8, -33.2, 0)), False)
sketch4.addGeometry(Part.ArcOfCircle(Part.Circle(V(0, 0, 0), V(0, 0, 1), 35.6), math.radians(49), math.radians(249)), False)
sketch4.addGeometry(Part.LineSegment(V(23.5, 26.7, 0), V(23.5, -18, 0)), False)
sketch4.addGeometry(Part.ArcOfCircle(Part.Circle(V(18, -18, 0), V(0, 0, 1), 5.6), math.radians(-122), math.radians(0)), False)
sketch4.addGeometry(Part.LineSegment(V(15, -22.7, 0), V(3.5, -15.4, 0)), False)
sketch4.addGeometry(Part.Circle(V(-18, 18, 0), V(0, 0, 1), 3.6), False)
sketch4.addGeometry(Part.Circle(V(18, 18, 0), V(0, 0, 1), 3.6), False)
sketch4.addGeometry(Part.ArcOfCircle(Part.Circle(V(0, 0, 0), V(0, 0, 1), 6.4), math.radians(-135), math.radians(-45)), False)
sketch4.addGeometry(Part.ArcOfCircle(Part.Circle(V(0, 0, 0), V(0, 0, 1), 6.3), math.radians(-45), math.radians(225)), False)
sketch4.addGeometry(Part.Circle(V(18, -18, 0), V(0, 0, 1), 3.6), False)
sketch4.addConstraint(Sketcher.Constraint("Coincident", 0, 2, 1, 1))
sketch4.addConstraint(Sketcher.Constraint("Coincident", 1, 2, 2, 1))
sketch4.addConstraint(Sketcher.Constraint("Coincident", 2, 2, 3, 2))
sketch4.addConstraint(Sketcher.Constraint("Coincident", 3, 1, 4, 1))
sketch4.addConstraint(Sketcher.Constraint("Tangent", 4, 2, 5, 2))
sketch4.addConstraint(Sketcher.Constraint("Tangent", 5, 1, 6, 1))
sketch4.addConstraint(Sketcher.Constraint("Coincident", 6, 2, 0, 1))
sketch4.addConstraint(Sketcher.Constraint("Tangent", 9, 1, 10, 2))
sketch4.addConstraint(Sketcher.Constraint("Coincident", 10, 1, 9, 2))
sketch4.addConstraint(Sketcher.Constraint("Horizontal", 0))
sketch4.addConstraint(Sketcher.Constraint("Vertical", 4))
sketch4.addConstraint(Sketcher.Constraint("Coincident", 3, 3, -1, 1))
sketch4.addConstraint(Sketcher.Constraint("Coincident", 9, 3, -1, 1))
sketch4.addConstraint(Sketcher.Constraint("Coincident", 11, 3, 5, 3))
sketch4.addConstraint(Sketcher.Constraint("Equal", 7, 8))
sketch4.addConstraint(Sketcher.Constraint("Equal", 8, 11))
sketch4.addConstraint(Sketcher.Constraint("Symmetric", 5, 3, 7, 3, -1, 1))
sketch4.addConstraint(Sketcher.Constraint("Symmetric", 7, 3, 8, 3, -2))
sketch4.addConstraint(Sketcher.Constraint("Horizontal", 9, 1, 10, 1))
sketch4.addConstraint(Sketcher.Constraint("Radius", 3, Q("1.4 in")))
sketch4.addConstraint(Sketcher.Constraint("Radius", 9, Q("0.25 in")))
sketch4.addConstraint(Sketcher.Constraint("Diameter", 7, Q("0.28125 in")))
sketch4.addConstraint(Sketcher.Constraint("DistanceX", 0, 2, 0, 1, Q("0.275 in")))
sketch4.addConstraint(Sketcher.Constraint("DistanceX", 0, 2, -1, 1, Q("0.1375 in")))
sketch4.addConstraint(Sketcher.Constraint("Radius", 5, Q("5.571875 mm")))
sketch4.addConstraint(Sketcher.Constraint("DistanceY", 0, 2, -1, 1, Q("15.384 mm")))
sketch4.addConstraint(Sketcher.Constraint("DistanceX", -1, 1, 5, 1, Q("14.976701 mm")))
sketch4.addConstraint(Sketcher.Constraint("DistanceY", 8, 3, 3, 1, Q("8.699202 mm")))
sketch4.addConstraint(Sketcher.Constraint("Distance", 1, Q("12.14313 mm")))
sketch4.addConstraint(Sketcher.Constraint("DistanceY", 1, 2, -1, 1, Q("27.330889 mm")))
sketch4.addConstraint(Sketcher.Constraint("DistanceY", 2, 2, -1, 1, Q("33.157348 mm")))
sketch4.addConstraint(Sketcher.Constraint("DistanceX", 9, 1, -1, 1, Q("4.490128 mm")))
pad4 = body.newObject("PartDesign::Pad", "Pad003")
pad4.Profile = sketch4
pad4.Length = Q("0.3 in")
pad4.Reversed = True

sketch5 = body.newObject("Sketcher::SketchObject", "Sketch004")
sketch5.AttachmentSupport = (doc.getObject("YZ_Plane"), [""])
sketch5.MapMode = "FlatFace"
sketch5.AttachmentOffset = App.Placement(V(0, 0, 23.532387), App.Rotation())
sketch5.addGeometry(Part.Circle(V(22.7, 6.2, 0), V(0, 0, 1), 1.9), False)
sketch5.addGeometry(Part.Circle(V(22.7, -6.2, 0), V(0, 0, 1), 1.9), False)
sketch5.addGeometry(Part.Circle(V(2.7, -6.2, 0), V(0, 0, 1), 1.9), False)
sketch5.addGeometry(Part.Circle(V(2.7, 6.2, 0), V(0, 0, 1), 1.9), False)
sketch5.addConstraint(Sketcher.Constraint("Equal", 0, 1))
sketch5.addConstraint(Sketcher.Constraint("Equal", 1, 2))
sketch5.addConstraint(Sketcher.Constraint("Equal", 2, 3))
sketch5.addConstraint(Sketcher.Constraint("Symmetric", 0, 3, 1, 3, -1))
sketch5.addConstraint(Sketcher.Constraint("Symmetric", 2, 3, 3, 3, -1))
sketch5.addConstraint(Sketcher.Constraint("Horizontal", 1, 3, 2, 3))
sketch5.addConstraint(Sketcher.Constraint("Diameter", 0, Q("3.85 mm")))
sketch5.addConstraint(Sketcher.Constraint("DistanceY", -1, 1, 0, 3, Q("6.243 mm")))
sketch5.addConstraint(Sketcher.Constraint("DistanceX", 2, 3, 1, 3, Q("19.9155 mm")))
sketch5.addConstraint(Sketcher.Constraint("DistanceX", -1, 1, 0, 3, Q("22.65775 mm")))
pocket1 = body.newObject("PartDesign::Pocket", "Pocket")
pocket1.Profile = sketch5
pocket1.Length = 5.75

sketch6 = body.newObject("Sketcher::SketchObject", "Sketch005")
sketch6.AttachmentSupport = (doc.getObject("XZ_Plane"), [""])
sketch6.MapMode = "FlatFace"
sketch6.AttachmentOffset = App.Placement(V(0, 0, -30.449), App.Rotation())
sketch6.addGeometry(Part.LineSegment(V(-13, -33, 0), V(-1, -27, 0)), False)
sketch6.addGeometry(Part.LineSegment(V(-1, -27, 0), V(3, -35, 0)), False)
sketch6.addGeometry(Part.ArcOfCircle(Part.Circle(V(0, 0, 0), V(0, 0, 1), 36), math.radians(-111), math.radians(-86)), False)
sketch6.addGeometry(Part.LineSegment(V(31, -18, 0), V(24, -18, 0)), False)
sketch6.addGeometry(Part.LineSegment(V(24, -18, 0), V(24, 18, 0)), False)
sketch6.addGeometry(Part.LineSegment(V(24, 18, 0), V(24, 27, 0)), False)
sketch6.addGeometry(Part.ArcOfCircle(Part.Circle(V(0, 0, 0), V(0, 0, 1), 36), math.radians(-30), math.radians(49)), False)
sketch6.addConstraint(Sketcher.Constraint("Coincident", 0, 2, 1, 1))
sketch6.addConstraint(Sketcher.Constraint("Coincident", 1, 2, 2, 2))
sketch6.addConstraint(Sketcher.Constraint("Coincident", 2, 1, 0, 1))
sketch6.addConstraint(Sketcher.Constraint("Coincident", 3, 2, 4, 1))
sketch6.addConstraint(Sketcher.Constraint("Coincident", 4, 2, 5, 1))
sketch6.addConstraint(Sketcher.Constraint("Coincident", 5, 2, 6, 2))
sketch6.addConstraint(Sketcher.Constraint("Coincident", 6, 1, 3, 1))
sketch6.addConstraint(Sketcher.Constraint("Horizontal", 3))
sketch6.addConstraint(Sketcher.Constraint("Vertical", 4))
sketch6.addConstraint(Sketcher.Constraint("Vertical", 5))
sketch6.addConstraint(Sketcher.Constraint("Coincident", 2, 3, -1, 1))
sketch6.addConstraint(Sketcher.Constraint("Coincident", 6, 3, -1, 1))
sketch6.addConstraint(Sketcher.Constraint("Equal", 2, 6))
sketch6.addConstraint(Sketcher.Constraint("Perpendicular", 0, 1))
sketch6.addConstraint(Sketcher.Constraint("Radius", 2, Q("1.4 in")))
sketch6.addConstraint(Sketcher.Constraint("DistanceY", 5, 1, 5, 2, Q("8.699202 mm")))
sketch6.addConstraint(Sketcher.Constraint("DistanceX", 3, 2, 3, 1, Q("7.15855 mm")))
sketch6.addConstraint(Sketcher.Constraint("DistanceY", 0, 2, 4, 2, Q("45.291401 mm")))
sketch6.addConstraint(Sketcher.Constraint("DistanceX", 1, 2, 6, 1, Q("27.906301 mm")))
sketch6.addConstraint(Sketcher.Constraint("Distance", 1, Q("9.097611 mm")))
sketch6.addConstraint(Sketcher.Constraint("DistanceY", 4, 1, 4, 2, Q("35.921024 mm")))
pad5 = body.newObject("PartDesign::Pad", "Pad004")
pad5.Profile = sketch6
pad5.Length = 6
pad5.Reversed = True

sketch7 = body.newObject("Sketcher::SketchObject", "Sketch006")
sketch7.AttachmentSupport = (doc.getObject("XZ_Plane"), [""])
sketch7.MapMode = "FlatFace"
sketch7.AttachmentOffset = App.Placement(V(0, 0, -1.435 * 25.4), App.Rotation())
sketch7.addGeometry(Part.Circle(V(-31.5, -9.2, 0), V(0, 0, 1), 1.9), False)
sketch7.addGeometry(Part.Circle(V(-9.2, -31.5, 0), V(0, 0, 1), 1.9), False)
sketch7.addGeometry(Part.Circle(V(31.5, 9.2, 0), V(0, 0, 1), 1.9), False)
sketch7.addGeometry(Part.Circle(V(9.2, 31.5, 0), V(0, 0, 1), 1.9), False)
sketch7.addConstraint(Sketcher.Constraint("Equal", 0, 1))
sketch7.addConstraint(Sketcher.Constraint("Equal", 1, 2))
sketch7.addConstraint(Sketcher.Constraint("Equal", 2, 3))
sketch7.addConstraint(Sketcher.Constraint("Symmetric", 0, 3, 2, 3, -1, 1))
sketch7.addConstraint(Sketcher.Constraint("Symmetric", 1, 3, 3, 3, -1, 1))
sketch7.addConstraint(Sketcher.Constraint("Diameter", 0, Q("3.85 mm")))
sketch7.addConstraint(Sketcher.Constraint("DistanceX", 0, 3, -1, 1, Q("31.466252 mm")))
sketch7.addConstraint(Sketcher.Constraint("DistanceY", 0, 3, -1, 1, Q("9.192388 mm")))
sketch7.addConstraint(Sketcher.Constraint("DistanceX", 1, 3, -1, 1, Q("9.192388 mm")))
sketch7.addConstraint(Sketcher.Constraint("DistanceY", 1, 3, -1, 1, Q("31.466252 mm")))
pocket2 = body.newObject("PartDesign::Pocket", "Pocket001")
pocket2.Profile = sketch7
pocket2.Length = 5.75
pocket2.Reversed = True

doc.recompute()
